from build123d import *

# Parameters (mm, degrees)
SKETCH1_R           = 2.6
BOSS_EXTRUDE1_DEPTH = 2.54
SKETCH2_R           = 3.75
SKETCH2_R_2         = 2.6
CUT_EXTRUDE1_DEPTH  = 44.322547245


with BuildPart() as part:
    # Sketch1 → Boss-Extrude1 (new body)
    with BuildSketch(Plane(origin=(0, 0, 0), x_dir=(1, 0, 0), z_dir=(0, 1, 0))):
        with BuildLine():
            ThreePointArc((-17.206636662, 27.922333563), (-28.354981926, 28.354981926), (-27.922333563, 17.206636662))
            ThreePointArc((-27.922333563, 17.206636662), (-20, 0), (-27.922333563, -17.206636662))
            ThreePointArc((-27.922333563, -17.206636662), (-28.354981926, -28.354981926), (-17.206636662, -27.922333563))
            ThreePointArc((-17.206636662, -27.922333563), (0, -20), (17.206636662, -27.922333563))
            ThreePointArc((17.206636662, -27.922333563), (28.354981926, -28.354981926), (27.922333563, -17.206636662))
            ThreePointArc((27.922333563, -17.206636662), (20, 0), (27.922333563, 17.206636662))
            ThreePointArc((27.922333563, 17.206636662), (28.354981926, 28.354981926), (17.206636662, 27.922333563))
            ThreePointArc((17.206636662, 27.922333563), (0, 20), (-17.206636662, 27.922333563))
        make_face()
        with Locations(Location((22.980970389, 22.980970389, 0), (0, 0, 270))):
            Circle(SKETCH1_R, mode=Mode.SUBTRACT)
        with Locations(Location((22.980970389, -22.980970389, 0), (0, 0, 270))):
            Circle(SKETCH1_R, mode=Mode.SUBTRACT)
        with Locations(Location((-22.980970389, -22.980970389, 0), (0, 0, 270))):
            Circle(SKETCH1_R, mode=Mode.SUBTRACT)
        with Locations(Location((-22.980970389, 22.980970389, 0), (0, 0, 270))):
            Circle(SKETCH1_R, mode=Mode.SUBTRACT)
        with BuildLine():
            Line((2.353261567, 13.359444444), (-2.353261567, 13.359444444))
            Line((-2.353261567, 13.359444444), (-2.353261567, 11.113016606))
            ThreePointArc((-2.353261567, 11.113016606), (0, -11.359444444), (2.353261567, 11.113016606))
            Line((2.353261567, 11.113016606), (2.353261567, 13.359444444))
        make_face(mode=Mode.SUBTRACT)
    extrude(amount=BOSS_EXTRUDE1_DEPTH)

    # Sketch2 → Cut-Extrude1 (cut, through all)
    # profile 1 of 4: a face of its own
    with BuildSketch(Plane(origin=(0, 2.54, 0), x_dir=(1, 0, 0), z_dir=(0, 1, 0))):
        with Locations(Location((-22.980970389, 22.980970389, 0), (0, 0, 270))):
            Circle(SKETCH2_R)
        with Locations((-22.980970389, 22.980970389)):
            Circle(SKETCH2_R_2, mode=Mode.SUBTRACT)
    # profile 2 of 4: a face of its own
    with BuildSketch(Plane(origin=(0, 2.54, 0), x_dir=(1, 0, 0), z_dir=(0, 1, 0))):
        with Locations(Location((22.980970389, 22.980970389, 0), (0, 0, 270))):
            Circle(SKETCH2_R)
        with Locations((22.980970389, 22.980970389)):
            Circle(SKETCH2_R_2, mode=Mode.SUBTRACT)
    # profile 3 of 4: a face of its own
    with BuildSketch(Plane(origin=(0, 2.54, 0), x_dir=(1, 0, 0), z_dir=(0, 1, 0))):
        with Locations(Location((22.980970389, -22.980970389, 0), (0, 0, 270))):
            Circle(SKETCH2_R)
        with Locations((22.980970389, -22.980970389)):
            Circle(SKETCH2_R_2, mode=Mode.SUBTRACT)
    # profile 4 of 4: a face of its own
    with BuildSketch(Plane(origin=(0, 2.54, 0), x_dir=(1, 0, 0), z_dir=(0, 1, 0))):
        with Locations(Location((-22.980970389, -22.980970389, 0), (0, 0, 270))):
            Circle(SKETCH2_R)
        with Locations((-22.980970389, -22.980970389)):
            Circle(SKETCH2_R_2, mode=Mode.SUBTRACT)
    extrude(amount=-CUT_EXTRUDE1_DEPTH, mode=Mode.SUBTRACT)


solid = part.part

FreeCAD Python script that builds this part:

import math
import FreeCAD as App
import Part
import Sketcher

V = App.Vector

doc = App.newDocument("Part")
body = doc.addObject("PartDesign::Body", "Body")

# Sketch on XZ plane
sketch1 = doc.addObject("Sketcher::SketchObject", "Sketch")
body.addObject(sketch1)
sketch1.AttachmentSupport = (doc.XZ_Plane, [""])
sketch1.MapMode = "FlatFace"
sketch1.addGeometry([
    Part.ArcOfCircle(Part.Circle(V(-23, -23, 0), V(0, 0, 1), 7.6), math.radians(131), math.radians(319)),  # 0
    Part.ArcOfCircle(Part.Circle(V(-42.6, 0, 0), V(0, 0, 1), 22.6), math.radians(-49), math.radians(49)),  # 1
    Part.ArcOfCircle(Part.Circle(V(-23, 23, 0), V(0, 0, 1), 7.6), math.radians(41), math.radians(229)),  # 2
    Part.ArcOfCircle(Part.Circle(V(0, 42.6, 0), V(0, 0, 1), 22.6), math.radians(-139), math.radians(-41)),  # 3
    Part.ArcOfCircle(Part.Circle(V(23, 23, 0), V(0, 0, 1), 7.6), math.radians(-49), math.radians(139)),  # 4
    Part.ArcOfCircle(Part.Circle(V(42.6, 0, 0), V(0, 0, 1), 22.6), math.radians(131), math.radians(229)),  # 5
    Part.ArcOfCircle(Part.Circle(V(23, -23, 0), V(0, 0, 1), 7.6), math.radians(-139), math.radians(49)),  # 6
    Part.ArcOfCircle(Part.Circle(V(0, -42.6, 0), V(0, 0, 1), 22.6), math.radians(41), math.radians(139)),  # 7
    Part.Circle(V(-23, 23, 0), V(0, 0, 1), 2.6),  # 8
    Part.Circle(V(23, 23, 0), V(0, 0, 1), 2.6),  # 9
    Part.Circle(V(-23, -23, 0), V(0, 0, 1), 2.6),  # 10
    Part.LineSegment(V(-2.4, -13.4, 0), V(2.4, -13.4, 0)),  # 11
    Part.LineSegment(V(2.4, -13.4, 0), V(2.4, -11.1, 0)),  # 12
    Part.ArcOfCircle(Part.Circle(V(0, 0, 0), V(0, 0, 1), 11.4), math.radians(-78), math.radians(258)),  # 13
    Part.LineSegment(V(-2.4, -11.1, 0), V(-2.4, -13.4, 0)),  # 14
    Part.Circle(V(23, -23, 0), V(0, 0, 1), 2.6),  # 15
], False)
sketch1.addConstraint([
    Sketcher.Constraint("Tangent", 0, 1, 1, 1),
    Sketcher.Constraint("Tangent", 1, 2, 2, 2),
    Sketcher.Constraint("Tangent", 2, 1, 3, 1),
    Sketcher.Constraint("Tangent", 3, 2, 4, 2),
    Sketcher.Constraint("Tangent", 4, 1, 5, 1),
    Sketcher.Constraint("Tangent", 5, 2, 6, 2),
    Sketcher.Constraint("Tangent", 6, 1, 7, 1),
    Sketcher.Constraint("Tangent", 7, 2, 0, 2),
    Sketcher.Constraint("Coincident", 11, 2, 12, 1),
    Sketcher.Constraint("Coincident", 12, 2, 13, 1),
    Sketcher.Constraint("Coincident", 13, 2, 14, 1),
    Sketcher.Constraint("Coincident", 14, 2, 11, 1),
    Sketcher.Constraint("Horizontal", 11),
    Sketcher.Constraint("Vertical", 12),
    Sketcher.Constraint("Vertical", 14),
    Sketcher.Constraint("Coincident", 13, 3, -1, 1),
    Sketcher.Constraint("Coincident", 8, 3, 2, 3),
    Sketcher.Constraint("Coincident", 9, 3, 4, 3),
    Sketcher.Constraint("Coincident", 10, 3, 0, 3),
    Sketcher.Constraint("Coincident", 15, 3, 6, 3),
    Sketcher.Constraint("Equal", 0, 2),
    Sketcher.Constraint("Equal", 1, 3),
    Sketcher.Constraint("Equal", 2, 4),
    Sketcher.Constraint("Equal", 3, 5),
    Sketcher.Constraint("Equal", 4, 6),
    Sketcher.Constraint("Equal", 5, 7),
    Sketcher.Constraint("Equal", 8, 9),
    Sketcher.Constraint("Equal", 9, 10),
    Sketcher.Constraint("Equal", 10, 15),
    Sketcher.Constraint("Symmetric", 0, 3, 4, 3, -1, 1),
    Sketcher.Constraint("Symmetric", 2, 3, 6, 3, -1, 1),
    Sketcher.Constraint("Symmetric", 2, 3, 4, 3, -2),
    Sketcher.Constraint("Horizontal", 12, 2, 13, 2),
    Sketcher.Constraint("Diameter", 8, 5.2),
    Sketcher.Constraint("Radius", 0, 7.6),
    Sketcher.Constraint("Radius", 1, 22.646845),
    Sketcher.Constraint("Radius", 13, 11.359444),
    Sketcher.Constraint("DistanceX", 7, 2, 11, 2, 19.559898),
    Sketcher.Constraint("DistanceX", 11, 1, 11, 2, 4.706523),
    Sketcher.Constraint("DistanceY", 12, 1, 12, 2, 2.246428),
    Sketcher.Constraint("DistanceY", 0, 3, -1, 1, 22.98097),
])
pad1 = doc.addObject("PartDesign::Pad", "Pad")
body.addObject(pad1)
pad1.Profile = sketch1
pad1.Length = 2.54
pad1.Reversed = True

# Sketch on XZ plane
sketch2 = doc.addObject("Sketcher::SketchObject", "Sketch001")
body.addObject(sketch2)
sketch2.AttachmentSupport = (doc.XZ_Plane, [""])
sketch2.MapMode = "FlatFace"
sketch2.AttachmentOffset = App.Placement(V(0, 0, -2.54), App.Rotation())
sketch2.addGeometry([
    Part.Circle(V(-23, -23, 0), V(0, 0, 1), 3.8),  # 0
    Part.Circle(V(-23, -23, 0), V(0, 0, 1), 2.6),  # 1
    Part.Circle(V(23, -23, 0), V(0, 0, 1), 3.8),  # 2
    Part.Circle(V(23, -23, 0), V(0, 0, 1), 2.6),  # 3
    Part.Circle(V(23, 23, 0), V(0, 0, 1), 3.8),  # 4
    Part.Circle(V(23, 23, 0), V(0, 0, 1), 2.6),  # 5
    Part.Circle(V(-23, 23, 0), V(0, 0, 1), 3.8),  # 6
    Part.Circle(V(-23, 23, 0), V(0, 0, 1), 2.6),  # 7
], False)
sketch2.addConstraint([
    Sketcher.Constraint("Coincident", 1, 3, 0, 3),
    Sketcher.Constraint("Coincident", 3, 3, 2, 3),
    Sketcher.Constraint("Coincident", 5, 3, 4, 3),
    Sketcher.Constraint("Coincident", 7, 3, 6, 3),
    Sketcher.Constraint("Equal", 0, 2),
    Sketcher.Constraint("Equal", 1, 3),
    Sketcher.Constraint("Equal", 2, 4),
    Sketcher.Constraint("Equal", 3, 5),
    Sketcher.Constraint("Equal", 4, 6),
    Sketcher.Constraint("Equal", 5, 7),
    Sketcher.Constraint("Symmetric", 0, 3, 4, 3, -1, 1),
    Sketcher.Constraint("Symmetric", 2, 3, 6, 3, -1, 1),
    Sketcher.Constraint("Symmetric", 0, 3, 2, 3, -2),
    Sketcher.Constraint("Diameter", 0, 7.5),
    Sketcher.Constraint("Diameter", 1, 5.2),
    Sketcher.Constraint("DistanceX", 0, 3, -1, 1, 22.98097),
    Sketcher.Constraint("DistanceY", 0, 3, -1, 1, 22.98097),
])
pocket1 = doc.addObject("PartDesign::Pocket", "Pocket")
body.addObject(pocket1)
pocket1.Profile = sketch2
pocket1.Length = 44.322547
pocket1.Reversed = True

doc.recompute()
